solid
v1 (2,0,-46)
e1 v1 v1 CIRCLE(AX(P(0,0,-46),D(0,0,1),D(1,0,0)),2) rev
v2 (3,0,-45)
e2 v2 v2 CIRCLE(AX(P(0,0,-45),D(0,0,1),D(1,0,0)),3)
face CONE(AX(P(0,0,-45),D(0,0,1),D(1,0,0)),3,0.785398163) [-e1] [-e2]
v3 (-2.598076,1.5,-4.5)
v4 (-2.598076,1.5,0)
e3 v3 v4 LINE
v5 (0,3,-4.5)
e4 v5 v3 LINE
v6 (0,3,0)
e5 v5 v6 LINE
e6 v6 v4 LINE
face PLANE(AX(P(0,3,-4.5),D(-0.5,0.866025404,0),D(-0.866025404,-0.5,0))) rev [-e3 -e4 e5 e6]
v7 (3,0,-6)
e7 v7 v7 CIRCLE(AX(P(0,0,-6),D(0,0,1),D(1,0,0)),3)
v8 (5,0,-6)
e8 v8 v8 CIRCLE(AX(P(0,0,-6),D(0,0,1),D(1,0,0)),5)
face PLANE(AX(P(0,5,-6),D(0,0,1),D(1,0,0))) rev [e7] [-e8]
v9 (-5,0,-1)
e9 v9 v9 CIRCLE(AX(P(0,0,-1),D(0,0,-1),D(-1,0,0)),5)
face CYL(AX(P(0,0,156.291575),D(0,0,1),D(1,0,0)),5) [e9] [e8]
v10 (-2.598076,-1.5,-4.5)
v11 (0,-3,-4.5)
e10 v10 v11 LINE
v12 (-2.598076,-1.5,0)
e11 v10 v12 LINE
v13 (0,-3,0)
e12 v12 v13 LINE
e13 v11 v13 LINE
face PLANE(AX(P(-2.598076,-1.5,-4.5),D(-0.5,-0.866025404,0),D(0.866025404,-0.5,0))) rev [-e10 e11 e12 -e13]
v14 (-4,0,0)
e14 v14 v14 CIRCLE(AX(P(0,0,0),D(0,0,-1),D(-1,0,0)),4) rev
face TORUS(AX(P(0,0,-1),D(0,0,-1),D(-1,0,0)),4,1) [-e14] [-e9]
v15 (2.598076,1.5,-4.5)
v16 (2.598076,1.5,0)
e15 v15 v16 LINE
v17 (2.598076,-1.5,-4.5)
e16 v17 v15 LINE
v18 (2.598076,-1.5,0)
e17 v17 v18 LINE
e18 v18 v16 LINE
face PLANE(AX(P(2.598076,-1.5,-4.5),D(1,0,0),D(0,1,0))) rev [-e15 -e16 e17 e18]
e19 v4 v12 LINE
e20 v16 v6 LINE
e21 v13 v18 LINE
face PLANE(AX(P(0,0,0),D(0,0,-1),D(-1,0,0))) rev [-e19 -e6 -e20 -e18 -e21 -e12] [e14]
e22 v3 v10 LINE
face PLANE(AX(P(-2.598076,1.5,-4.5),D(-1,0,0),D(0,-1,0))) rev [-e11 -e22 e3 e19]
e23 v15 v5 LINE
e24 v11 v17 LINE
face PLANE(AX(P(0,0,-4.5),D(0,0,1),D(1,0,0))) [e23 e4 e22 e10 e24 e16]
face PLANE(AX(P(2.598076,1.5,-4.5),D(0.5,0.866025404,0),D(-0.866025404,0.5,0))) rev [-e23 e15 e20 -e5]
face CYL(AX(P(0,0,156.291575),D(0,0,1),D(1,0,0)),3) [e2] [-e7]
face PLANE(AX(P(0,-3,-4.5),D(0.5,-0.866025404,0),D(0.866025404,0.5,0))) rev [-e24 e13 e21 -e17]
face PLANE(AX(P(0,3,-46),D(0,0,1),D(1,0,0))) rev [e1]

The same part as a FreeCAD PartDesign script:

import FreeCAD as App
import Part
import Sketcher
Q = App.Units.Quantity


def edges_at(feature, points):
    """Names of the edges that pass closest to the given points."""
    edges = feature.Shape.Edges
    near = lambda p: min(range(len(edges)), key=lambda i: edges[i].distToShape(Part.Vertex(*p))[0])
    return sorted({f"Edge{near(p) + 1}" for p in points})


def add_polygon(sketch, points):
    """Adds a closed chain of lines whose ends are joined by coincident constraints."""
    first, n = sketch.GeometryCount, len(points)
    for a, b in zip(points, points[1:] + points[:1]):
        sketch.addGeometry(Part.LineSegment(App.Vector(*a, 0), App.Vector(*b, 0)), False)
    for i in range(n):
        sketch.addConstraint(Sketcher.Constraint("Coincident", first + i, 2, first + (i + 1) % n, 1))

doc = App.newDocument("Part")
body = doc.addObject("PartDesign::Body", "Body")

sketch1 = body.newObject("Sketcher::SketchObject", "Sketch")
sketch1.AttachmentSupport = (doc.getObject("YZ_Plane"), [""])
sketch1.MapMode = "FlatFace"
add_polygon(sketch1, [(5, 0), (0, 0), (0, -46), (3, -46), (3, -6), (5, -6)])
sketch1.addConstraint(Sketcher.Constraint("Horizontal", 0))
sketch1.addConstraint(Sketcher.Constraint("Vertical", 1))
sketch1.addConstraint(Sketcher.Constraint("Horizontal", 2))
sketch1.addConstraint(Sketcher.Constraint("Vertical", 3))
sketch1.addConstraint(Sketcher.Constraint("Horizontal", 4))
sketch1.addConstraint(Sketcher.Constraint("Vertical", 5))
sketch1.addConstraint(Sketcher.Constraint("Coincident", 0, 2, -1, 1))
sketch1.addConstraint(Sketcher.Constraint("DistanceX", 0, 2, 0, 1, 5.0))
sketch1.addConstraint(Sketcher.Constraint("DistanceX", 2, 1, 2, 2, 3.0))
sketch1.addConstraint(Sketcher.Constraint("DistanceY", 1, 2, 1, 1, 46.0))
sketch1.addConstraint(Sketcher.Constraint("DistanceY", 3, 1, 3, 2, 40.0))
revolution = body.newObject("PartDesign::Revolution", "Revolution")
revolution.Profile = sketch1
revolution.ReferenceAxis = (sketch1, ["V_Axis"])
revolution.Angle = 360

sketch2 = body.newObject("Sketcher::SketchObject", "Sketch001")
sketch2.AttachmentSupport = (doc.getObject("XY_Plane"), [""])
sketch2.MapMode = "FlatFace"
add_polygon(sketch2, [(0, 3), (-2.598076, 1.5), (-2.598076, -1.5), (0, -3), (2.598076, -1.5), (2.598076, 1.5)])
sketch2.addConstraint(Sketcher.Constraint("Vertical", 1))
sketch2.addConstraint(Sketcher.Constraint("Vertical", 4))
sketch2.addConstraint(Sketcher.Constraint("Symmetric", 0, 2, 3, 2, -1, 1))
sketch2.addConstraint(Sketcher.Constraint("Symmetric", 2, 2, 5, 2, -1, 1))
sketch2.addConstraint(Sketcher.Constraint("PointOnObject", 2, 2, -2))
sketch2.addConstraint(Sketcher.Constraint("Parallel", 2, 5))
sketch2.addConstraint(Sketcher.Constraint("Horizontal", 1, 2, 3, 2))
sketch2.addConstraint(Sketcher.Constraint("DistanceY", 1, 2, 1, 1, 3.0))
sketch2.addConstraint(Sketcher.Constraint("Angle", 0, Q("-150 deg")))
sketch2.addConstraint(Sketcher.Constraint("Distance", 0, 3.0))
pocket1 = body.newObject("PartDesign::Pocket", "Pocket")
pocket1.Profile = sketch2
pocket1.Length = 4.5
doc.recompute()

chamfer = body.newObject("PartDesign::Chamfer", "Chamfer")
chamfer.Base = (pocket1, edges_at(pocket1, [(-3, 0, -46)]))
chamfer.Size = 1
doc.recompute()

fillet = body.newObject("PartDesign::Fillet", "Fillet")
fillet.Base = (chamfer, edges_at(chamfer, [(-5, 0, 0)]))
fillet.Radius = 1

doc.recompute()
